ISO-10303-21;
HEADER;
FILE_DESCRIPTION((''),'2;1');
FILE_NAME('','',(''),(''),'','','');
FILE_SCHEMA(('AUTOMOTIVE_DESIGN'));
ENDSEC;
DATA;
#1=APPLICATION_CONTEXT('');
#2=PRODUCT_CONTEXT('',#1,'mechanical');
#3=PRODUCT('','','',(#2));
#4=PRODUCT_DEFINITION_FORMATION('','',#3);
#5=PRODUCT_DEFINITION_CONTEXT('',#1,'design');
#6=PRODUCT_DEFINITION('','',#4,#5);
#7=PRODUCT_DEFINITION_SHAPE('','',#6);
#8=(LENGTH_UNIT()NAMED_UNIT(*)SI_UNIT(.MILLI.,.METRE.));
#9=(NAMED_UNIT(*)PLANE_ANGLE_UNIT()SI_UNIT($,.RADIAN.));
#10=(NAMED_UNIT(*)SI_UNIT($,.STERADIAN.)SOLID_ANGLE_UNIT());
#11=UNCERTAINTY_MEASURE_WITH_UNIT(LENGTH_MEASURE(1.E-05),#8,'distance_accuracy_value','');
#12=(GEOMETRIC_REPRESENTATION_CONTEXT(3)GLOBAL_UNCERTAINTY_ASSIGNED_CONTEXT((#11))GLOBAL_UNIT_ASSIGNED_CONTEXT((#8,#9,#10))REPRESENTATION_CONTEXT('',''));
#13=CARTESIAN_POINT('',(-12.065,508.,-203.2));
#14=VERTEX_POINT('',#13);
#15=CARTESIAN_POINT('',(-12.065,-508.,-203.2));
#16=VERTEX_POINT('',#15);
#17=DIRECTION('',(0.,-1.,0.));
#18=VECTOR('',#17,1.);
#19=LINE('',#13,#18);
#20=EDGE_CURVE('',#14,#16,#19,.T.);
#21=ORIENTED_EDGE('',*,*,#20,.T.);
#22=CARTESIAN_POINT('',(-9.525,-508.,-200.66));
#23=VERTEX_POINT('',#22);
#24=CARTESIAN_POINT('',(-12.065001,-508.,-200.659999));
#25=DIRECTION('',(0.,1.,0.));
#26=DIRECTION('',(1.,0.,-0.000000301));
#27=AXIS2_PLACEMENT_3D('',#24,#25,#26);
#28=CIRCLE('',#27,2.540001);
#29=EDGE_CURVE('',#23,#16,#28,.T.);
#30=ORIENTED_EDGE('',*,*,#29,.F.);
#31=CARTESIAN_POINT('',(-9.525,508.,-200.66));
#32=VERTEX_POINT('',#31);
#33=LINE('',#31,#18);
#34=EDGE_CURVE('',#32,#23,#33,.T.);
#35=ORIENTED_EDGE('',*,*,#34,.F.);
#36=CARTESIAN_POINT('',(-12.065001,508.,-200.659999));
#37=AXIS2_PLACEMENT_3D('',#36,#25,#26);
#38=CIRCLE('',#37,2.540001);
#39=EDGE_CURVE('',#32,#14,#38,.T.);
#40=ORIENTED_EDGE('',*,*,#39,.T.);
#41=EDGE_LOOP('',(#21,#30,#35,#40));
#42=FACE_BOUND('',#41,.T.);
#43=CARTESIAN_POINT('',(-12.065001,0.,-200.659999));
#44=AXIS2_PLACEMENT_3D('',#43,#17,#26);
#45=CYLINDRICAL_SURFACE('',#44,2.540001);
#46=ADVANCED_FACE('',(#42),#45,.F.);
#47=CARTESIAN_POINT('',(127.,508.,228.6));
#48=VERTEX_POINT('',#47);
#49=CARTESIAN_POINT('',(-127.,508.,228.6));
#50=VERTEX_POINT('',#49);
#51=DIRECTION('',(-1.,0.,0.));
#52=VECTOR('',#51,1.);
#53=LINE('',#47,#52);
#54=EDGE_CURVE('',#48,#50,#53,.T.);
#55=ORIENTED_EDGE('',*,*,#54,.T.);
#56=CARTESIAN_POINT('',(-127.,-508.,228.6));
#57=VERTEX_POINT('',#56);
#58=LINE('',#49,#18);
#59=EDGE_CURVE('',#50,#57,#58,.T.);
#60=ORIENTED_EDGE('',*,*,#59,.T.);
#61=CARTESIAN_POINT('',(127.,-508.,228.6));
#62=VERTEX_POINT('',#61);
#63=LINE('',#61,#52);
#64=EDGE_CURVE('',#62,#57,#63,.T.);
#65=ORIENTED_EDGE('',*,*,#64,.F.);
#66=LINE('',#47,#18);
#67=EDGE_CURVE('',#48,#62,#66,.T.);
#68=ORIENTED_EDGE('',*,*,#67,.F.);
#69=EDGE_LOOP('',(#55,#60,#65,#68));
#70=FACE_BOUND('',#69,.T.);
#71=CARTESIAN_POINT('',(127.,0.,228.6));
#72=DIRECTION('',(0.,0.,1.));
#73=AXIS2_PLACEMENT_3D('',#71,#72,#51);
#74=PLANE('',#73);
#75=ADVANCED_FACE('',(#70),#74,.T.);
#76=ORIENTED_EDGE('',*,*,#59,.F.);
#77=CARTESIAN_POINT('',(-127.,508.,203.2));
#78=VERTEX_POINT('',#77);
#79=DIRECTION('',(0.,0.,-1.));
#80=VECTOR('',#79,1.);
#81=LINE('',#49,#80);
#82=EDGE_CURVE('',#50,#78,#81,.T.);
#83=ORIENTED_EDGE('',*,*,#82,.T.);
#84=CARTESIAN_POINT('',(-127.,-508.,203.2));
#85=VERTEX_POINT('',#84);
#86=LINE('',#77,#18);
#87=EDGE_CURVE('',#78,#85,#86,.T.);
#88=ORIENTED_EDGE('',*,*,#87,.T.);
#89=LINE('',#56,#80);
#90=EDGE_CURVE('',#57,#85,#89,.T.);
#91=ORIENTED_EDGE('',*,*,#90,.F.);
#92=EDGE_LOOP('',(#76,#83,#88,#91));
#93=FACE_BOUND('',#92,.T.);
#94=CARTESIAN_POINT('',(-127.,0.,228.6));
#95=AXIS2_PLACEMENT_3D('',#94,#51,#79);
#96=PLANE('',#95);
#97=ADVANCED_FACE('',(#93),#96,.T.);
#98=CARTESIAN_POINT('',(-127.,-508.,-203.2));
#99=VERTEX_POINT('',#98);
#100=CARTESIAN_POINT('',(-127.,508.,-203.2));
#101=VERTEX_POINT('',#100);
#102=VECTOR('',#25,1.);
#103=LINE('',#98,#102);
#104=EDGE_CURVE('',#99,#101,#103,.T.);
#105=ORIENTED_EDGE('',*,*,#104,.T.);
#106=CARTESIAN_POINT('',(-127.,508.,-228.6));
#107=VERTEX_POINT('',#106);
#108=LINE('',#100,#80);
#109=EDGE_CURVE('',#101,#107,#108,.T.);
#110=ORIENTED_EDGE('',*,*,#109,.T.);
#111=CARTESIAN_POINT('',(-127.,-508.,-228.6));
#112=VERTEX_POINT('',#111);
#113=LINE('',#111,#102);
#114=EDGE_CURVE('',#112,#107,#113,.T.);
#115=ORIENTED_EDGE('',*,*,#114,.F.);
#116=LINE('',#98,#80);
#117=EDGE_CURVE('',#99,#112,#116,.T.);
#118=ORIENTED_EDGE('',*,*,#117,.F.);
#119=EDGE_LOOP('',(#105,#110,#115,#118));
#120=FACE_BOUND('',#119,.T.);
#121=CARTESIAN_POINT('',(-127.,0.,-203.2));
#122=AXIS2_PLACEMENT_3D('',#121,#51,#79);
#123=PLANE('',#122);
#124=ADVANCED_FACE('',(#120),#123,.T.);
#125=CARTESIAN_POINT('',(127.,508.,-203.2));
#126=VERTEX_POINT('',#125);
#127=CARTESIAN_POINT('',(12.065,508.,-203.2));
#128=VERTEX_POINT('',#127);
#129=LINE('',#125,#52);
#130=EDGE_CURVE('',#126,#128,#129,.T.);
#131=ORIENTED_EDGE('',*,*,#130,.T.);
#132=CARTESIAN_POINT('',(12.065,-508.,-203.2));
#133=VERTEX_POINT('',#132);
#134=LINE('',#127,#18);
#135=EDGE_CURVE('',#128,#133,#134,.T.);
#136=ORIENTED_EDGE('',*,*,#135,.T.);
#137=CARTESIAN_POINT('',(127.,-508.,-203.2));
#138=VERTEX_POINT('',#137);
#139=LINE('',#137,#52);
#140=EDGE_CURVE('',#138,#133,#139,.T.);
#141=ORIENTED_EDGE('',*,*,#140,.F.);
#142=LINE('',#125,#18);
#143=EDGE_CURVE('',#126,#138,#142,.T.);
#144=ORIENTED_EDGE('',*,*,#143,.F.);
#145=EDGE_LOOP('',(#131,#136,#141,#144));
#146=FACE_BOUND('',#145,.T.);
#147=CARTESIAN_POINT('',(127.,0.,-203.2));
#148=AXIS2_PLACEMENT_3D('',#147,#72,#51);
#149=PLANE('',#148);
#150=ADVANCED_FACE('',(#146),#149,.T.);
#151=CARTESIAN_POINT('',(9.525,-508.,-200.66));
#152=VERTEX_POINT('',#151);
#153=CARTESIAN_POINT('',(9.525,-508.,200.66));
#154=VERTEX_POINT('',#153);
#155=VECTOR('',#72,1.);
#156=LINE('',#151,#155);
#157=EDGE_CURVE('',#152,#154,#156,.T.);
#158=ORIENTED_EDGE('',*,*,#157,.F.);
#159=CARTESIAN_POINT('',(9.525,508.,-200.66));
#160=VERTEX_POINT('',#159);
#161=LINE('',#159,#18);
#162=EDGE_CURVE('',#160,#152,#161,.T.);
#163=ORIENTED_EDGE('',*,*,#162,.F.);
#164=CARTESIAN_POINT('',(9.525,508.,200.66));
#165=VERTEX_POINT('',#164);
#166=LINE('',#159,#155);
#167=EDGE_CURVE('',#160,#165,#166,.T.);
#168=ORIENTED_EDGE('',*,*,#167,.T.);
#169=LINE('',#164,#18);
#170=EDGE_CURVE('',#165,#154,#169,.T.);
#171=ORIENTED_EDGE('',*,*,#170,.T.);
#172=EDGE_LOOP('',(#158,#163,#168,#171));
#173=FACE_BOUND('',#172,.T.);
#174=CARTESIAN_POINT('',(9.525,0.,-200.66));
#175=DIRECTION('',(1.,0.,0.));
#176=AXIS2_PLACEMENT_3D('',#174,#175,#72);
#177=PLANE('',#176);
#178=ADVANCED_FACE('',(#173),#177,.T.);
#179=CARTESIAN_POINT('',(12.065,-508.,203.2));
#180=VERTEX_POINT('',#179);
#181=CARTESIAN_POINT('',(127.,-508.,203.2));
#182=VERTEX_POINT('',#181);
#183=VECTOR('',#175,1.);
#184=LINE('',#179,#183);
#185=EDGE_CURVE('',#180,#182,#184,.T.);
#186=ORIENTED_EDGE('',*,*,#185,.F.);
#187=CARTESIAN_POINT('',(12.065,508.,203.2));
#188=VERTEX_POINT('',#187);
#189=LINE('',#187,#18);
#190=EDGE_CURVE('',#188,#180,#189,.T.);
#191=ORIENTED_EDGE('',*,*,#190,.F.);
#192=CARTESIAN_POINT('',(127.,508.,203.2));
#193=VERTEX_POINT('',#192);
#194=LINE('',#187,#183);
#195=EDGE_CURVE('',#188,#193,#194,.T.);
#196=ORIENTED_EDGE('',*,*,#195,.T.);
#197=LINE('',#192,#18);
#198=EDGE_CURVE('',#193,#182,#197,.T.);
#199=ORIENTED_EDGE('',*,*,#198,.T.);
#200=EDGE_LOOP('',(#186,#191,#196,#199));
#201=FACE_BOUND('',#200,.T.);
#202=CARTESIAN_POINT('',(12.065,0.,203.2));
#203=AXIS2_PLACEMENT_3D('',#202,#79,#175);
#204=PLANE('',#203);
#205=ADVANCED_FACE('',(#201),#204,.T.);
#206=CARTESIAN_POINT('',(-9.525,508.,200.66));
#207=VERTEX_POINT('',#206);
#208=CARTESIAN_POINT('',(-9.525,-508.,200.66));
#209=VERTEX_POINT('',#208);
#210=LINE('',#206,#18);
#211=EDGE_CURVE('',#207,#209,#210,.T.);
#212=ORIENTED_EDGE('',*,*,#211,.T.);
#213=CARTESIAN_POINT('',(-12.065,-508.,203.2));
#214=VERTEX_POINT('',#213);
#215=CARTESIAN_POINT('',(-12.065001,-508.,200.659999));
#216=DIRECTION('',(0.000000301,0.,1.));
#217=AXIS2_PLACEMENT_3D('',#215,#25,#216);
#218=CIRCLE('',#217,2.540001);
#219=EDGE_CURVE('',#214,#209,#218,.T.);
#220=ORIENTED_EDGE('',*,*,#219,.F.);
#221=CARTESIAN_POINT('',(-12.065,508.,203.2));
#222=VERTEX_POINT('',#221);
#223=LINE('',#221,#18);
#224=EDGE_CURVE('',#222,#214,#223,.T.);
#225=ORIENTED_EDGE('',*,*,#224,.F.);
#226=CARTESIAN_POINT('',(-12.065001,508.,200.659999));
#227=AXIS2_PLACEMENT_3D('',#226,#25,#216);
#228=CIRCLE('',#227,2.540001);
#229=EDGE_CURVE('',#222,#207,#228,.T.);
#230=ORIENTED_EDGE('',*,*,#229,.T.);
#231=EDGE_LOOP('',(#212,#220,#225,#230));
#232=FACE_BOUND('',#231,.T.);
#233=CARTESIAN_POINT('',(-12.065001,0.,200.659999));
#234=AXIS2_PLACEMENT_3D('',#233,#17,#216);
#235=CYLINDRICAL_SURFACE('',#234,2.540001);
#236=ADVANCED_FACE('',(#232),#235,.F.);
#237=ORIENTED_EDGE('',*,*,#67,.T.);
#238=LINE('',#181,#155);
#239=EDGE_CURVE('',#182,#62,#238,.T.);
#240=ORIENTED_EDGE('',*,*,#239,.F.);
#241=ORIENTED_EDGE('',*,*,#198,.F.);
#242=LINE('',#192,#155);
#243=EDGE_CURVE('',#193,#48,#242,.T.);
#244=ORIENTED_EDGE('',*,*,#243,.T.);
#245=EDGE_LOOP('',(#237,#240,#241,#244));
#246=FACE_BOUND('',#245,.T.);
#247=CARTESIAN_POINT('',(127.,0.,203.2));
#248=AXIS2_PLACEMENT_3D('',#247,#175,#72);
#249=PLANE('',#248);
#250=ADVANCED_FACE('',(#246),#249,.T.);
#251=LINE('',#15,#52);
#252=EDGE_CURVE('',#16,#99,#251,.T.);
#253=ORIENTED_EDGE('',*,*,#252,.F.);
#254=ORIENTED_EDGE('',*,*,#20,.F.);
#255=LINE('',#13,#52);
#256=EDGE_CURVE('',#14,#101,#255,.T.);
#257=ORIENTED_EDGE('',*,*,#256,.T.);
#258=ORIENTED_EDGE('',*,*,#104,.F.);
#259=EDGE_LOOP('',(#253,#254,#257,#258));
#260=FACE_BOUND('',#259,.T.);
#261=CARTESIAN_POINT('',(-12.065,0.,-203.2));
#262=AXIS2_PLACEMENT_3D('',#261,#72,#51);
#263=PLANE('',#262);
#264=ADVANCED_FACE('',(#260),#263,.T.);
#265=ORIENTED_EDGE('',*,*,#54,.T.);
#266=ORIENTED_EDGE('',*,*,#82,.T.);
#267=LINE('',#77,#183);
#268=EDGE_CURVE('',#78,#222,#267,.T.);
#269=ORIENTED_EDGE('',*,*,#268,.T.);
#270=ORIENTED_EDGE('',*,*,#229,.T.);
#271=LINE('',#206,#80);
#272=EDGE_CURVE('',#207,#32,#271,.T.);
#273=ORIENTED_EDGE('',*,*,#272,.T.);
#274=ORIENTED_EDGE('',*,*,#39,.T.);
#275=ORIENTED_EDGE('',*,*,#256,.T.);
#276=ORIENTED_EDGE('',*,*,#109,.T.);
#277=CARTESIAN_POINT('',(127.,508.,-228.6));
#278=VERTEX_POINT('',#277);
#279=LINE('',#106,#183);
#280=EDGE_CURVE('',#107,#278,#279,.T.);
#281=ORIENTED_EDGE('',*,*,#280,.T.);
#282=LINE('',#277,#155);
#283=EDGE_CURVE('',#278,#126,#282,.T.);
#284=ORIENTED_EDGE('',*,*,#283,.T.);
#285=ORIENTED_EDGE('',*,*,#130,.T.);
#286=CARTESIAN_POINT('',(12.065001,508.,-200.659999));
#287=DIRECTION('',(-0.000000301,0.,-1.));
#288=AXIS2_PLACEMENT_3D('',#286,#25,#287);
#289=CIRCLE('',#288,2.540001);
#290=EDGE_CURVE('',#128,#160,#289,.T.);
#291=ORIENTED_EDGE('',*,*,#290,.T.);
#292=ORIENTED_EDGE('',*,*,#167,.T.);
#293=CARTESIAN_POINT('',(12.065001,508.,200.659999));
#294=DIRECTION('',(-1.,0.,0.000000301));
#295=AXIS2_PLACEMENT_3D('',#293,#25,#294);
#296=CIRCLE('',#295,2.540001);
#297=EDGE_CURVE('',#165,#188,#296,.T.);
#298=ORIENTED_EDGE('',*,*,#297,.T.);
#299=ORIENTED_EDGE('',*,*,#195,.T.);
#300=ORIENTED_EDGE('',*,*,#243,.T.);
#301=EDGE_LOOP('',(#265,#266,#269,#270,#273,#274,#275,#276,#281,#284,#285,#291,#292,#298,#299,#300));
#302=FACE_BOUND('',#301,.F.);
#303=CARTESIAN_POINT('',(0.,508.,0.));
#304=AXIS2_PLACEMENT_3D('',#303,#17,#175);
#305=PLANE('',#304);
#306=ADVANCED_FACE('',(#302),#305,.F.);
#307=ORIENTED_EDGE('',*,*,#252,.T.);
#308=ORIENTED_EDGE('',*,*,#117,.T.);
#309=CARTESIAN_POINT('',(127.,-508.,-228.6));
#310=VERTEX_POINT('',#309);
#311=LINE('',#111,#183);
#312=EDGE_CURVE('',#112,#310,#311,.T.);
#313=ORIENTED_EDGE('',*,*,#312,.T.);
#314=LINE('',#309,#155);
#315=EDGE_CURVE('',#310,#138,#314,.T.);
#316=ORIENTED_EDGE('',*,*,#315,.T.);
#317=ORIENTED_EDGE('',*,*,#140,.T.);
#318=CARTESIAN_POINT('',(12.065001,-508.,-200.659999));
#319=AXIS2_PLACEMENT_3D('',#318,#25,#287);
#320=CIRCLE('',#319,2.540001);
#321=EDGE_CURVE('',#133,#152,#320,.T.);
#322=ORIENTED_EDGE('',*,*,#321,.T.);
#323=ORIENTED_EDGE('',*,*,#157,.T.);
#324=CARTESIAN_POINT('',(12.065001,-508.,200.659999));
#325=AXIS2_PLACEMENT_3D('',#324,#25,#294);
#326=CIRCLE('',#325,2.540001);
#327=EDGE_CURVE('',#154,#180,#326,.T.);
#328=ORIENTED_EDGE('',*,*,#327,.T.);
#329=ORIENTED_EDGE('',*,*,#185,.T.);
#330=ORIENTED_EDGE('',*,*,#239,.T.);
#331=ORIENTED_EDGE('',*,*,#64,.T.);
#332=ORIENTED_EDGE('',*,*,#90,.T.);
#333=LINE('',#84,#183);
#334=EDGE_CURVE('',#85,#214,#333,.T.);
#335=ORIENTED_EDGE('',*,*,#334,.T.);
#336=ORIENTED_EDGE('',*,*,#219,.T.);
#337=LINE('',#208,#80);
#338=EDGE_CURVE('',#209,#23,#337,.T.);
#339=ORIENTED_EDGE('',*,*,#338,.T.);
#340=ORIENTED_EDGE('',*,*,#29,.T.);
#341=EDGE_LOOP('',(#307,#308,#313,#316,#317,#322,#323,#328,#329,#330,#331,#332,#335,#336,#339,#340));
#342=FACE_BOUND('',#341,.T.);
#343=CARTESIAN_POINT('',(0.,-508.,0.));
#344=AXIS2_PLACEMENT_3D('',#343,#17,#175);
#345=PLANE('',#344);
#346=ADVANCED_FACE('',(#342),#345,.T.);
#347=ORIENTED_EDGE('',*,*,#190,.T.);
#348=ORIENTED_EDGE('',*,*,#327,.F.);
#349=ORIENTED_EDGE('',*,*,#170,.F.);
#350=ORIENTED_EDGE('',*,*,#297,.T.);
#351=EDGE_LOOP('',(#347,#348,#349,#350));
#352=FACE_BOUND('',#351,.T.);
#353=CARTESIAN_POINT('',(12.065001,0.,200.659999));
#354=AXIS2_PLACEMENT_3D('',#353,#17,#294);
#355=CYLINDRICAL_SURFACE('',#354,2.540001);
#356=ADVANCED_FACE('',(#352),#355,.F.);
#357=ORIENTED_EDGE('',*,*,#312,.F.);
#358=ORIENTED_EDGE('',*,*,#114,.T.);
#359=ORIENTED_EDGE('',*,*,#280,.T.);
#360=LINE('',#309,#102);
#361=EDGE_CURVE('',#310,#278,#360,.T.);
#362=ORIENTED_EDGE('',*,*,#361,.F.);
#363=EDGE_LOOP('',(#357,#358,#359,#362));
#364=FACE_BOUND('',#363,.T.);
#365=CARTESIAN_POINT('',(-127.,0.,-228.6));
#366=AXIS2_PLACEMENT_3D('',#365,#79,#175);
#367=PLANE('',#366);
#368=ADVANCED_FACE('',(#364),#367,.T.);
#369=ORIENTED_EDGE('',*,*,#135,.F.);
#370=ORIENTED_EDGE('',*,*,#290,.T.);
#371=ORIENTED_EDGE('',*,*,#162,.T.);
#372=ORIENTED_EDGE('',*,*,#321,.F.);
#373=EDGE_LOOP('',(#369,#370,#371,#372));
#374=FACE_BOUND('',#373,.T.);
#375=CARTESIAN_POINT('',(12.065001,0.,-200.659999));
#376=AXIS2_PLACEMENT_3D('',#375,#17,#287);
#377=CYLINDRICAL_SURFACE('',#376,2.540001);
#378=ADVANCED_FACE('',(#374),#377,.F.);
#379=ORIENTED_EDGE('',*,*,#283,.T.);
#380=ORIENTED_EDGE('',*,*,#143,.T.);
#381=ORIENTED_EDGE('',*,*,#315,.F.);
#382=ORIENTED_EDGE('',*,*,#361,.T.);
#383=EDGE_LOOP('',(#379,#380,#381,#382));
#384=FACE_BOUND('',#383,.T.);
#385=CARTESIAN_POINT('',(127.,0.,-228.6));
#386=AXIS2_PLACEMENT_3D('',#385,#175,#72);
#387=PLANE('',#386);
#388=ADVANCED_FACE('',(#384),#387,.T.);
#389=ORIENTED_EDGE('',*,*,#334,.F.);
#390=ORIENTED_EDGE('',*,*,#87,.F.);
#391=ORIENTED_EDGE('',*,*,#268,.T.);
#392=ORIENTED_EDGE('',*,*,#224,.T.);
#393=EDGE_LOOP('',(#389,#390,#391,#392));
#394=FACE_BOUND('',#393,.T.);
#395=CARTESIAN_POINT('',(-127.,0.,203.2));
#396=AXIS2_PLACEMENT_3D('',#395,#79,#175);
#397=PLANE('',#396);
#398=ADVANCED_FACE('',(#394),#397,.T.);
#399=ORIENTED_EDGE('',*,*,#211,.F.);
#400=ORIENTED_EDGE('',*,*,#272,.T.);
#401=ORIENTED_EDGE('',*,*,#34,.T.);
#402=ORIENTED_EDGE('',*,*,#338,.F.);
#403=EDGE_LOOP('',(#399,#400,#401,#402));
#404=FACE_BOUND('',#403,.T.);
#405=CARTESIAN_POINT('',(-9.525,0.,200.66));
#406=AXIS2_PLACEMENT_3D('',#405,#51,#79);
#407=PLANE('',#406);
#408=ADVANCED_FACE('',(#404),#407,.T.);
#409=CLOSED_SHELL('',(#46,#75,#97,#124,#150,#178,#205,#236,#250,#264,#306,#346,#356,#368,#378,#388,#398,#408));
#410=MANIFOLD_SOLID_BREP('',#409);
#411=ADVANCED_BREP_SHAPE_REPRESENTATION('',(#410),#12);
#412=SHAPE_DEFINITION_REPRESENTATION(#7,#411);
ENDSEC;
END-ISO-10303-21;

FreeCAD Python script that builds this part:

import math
import FreeCAD as App
import Part
import Sketcher
from FreeCAD import Vector
Q = App.Units.Quantity

doc = App.newDocument("Part")
body = doc.addObject("PartDesign::Body", "Body")

# Sketch on XZ plane
sketch1 = body.newObject("Sketcher::SketchObject", "Sketch")
sketch1.AttachmentSupport = (doc.getObject("XZ_Plane"), [""])
sketch1.MapMode = "FlatFace"
sketch1.addGeometry([
    Part.LineSegment(Vector(127, -228.6, 0), Vector(127, -203.2, 0)),  # 0
    Part.LineSegment(Vector(127, -203.2, 0), Vector(12.1, -203.2, 0)),  # 1
    Part.ArcOfCircle(Part.Circle(Vector(12.1, -200.7, 0), Vector(0, 0, 1), 2.5), math.radians(-180), math.radians(-90)),  # 2
    Part.LineSegment(Vector(9.5, -200.7, 0), Vector(9.5, 200.7, 0)),  # 3
    Part.ArcOfCircle(Part.Circle(Vector(12.1, 200.7, 0), Vector(0, 0, 1), 2.5), math.radians(90), math.radians(180)),  # 4
    Part.LineSegment(Vector(12.1, 203.2, 0), Vector(127, 203.2, 0)),  # 5
    Part.LineSegment(Vector(127, 203.2, 0), Vector(127, 228.6, 0)),  # 6
    Part.LineSegment(Vector(127, 228.6, 0), Vector(-127, 228.6, 0)),  # 7
    Part.LineSegment(Vector(-127, 228.6, 0), Vector(-127, 203.2, 0)),  # 8
    Part.LineSegment(Vector(-127, 203.2, 0), Vector(-12.1, 203.2, 0)),  # 9
    Part.ArcOfCircle(Part.Circle(Vector(-12.1, 200.7, 0), Vector(0, 0, 1), 2.5), math.radians(0), math.radians(90)),  # 10
    Part.LineSegment(Vector(-9.5, 200.7, 0), Vector(-9.5, -200.7, 0)),  # 11
    Part.ArcOfCircle(Part.Circle(Vector(-12.1, -200.7, 0), Vector(0, 0, 1), 2.5), math.radians(-90), math.radians(0)),  # 12
    Part.LineSegment(Vector(-12.1, -203.2, 0), Vector(-127, -203.2, 0)),  # 13
    Part.LineSegment(Vector(-127, -203.2, 0), Vector(-127, -228.6, 0)),  # 14
    Part.LineSegment(Vector(-127, -228.6, 0), Vector(127, -228.6, 0)),  # 15
], False)
sketch1.addConstraint([
    Sketcher.Constraint("Coincident", 0, 2, 1, 1),
    Sketcher.Constraint("Tangent", 1, 2, 2, 2),
    Sketcher.Constraint("Tangent", 2, 1, 3, 1),
    Sketcher.Constraint("Tangent", 3, 2, 4, 2),
    Sketcher.Constraint("Tangent", 4, 1, 5, 1),
    Sketcher.Constraint("Coincident", 5, 2, 6, 1),
    Sketcher.Constraint("Coincident", 6, 2, 7, 1),
    Sketcher.Constraint("Coincident", 7, 2, 8, 1),
    Sketcher.Constraint("Coincident", 8, 2, 9, 1),
    Sketcher.Constraint("Tangent", 9, 2, 10, 2),
    Sketcher.Constraint("Tangent", 10, 1, 11, 1),
    Sketcher.Constraint("Tangent", 11, 2, 12, 2),
    Sketcher.Constraint("Tangent", 12, 1, 13, 1),
    Sketcher.Constraint("Coincident", 13, 2, 14, 1),
    Sketcher.Constraint("Coincident", 14, 2, 15, 1),
    Sketcher.Constraint("Coincident", 15, 2, 0, 1),
    Sketcher.Constraint("Vertical", 0),
    Sketcher.Constraint("Horizontal", 1),
    Sketcher.Constraint("Vertical", 3),
    Sketcher.Constraint("Horizontal", 5),
    Sketcher.Constraint("Vertical", 6),
    Sketcher.Constraint("Horizontal", 7),
    Sketcher.Constraint("Vertical", 8),
    Sketcher.Constraint("Horizontal", 9),
    Sketcher.Constraint("Vertical", 11),
    Sketcher.Constraint("Horizontal", 13),
    Sketcher.Constraint("Vertical", 14),
    Sketcher.Constraint("Horizontal", 15),
    Sketcher.Constraint("Equal", 2, 4),
    Sketcher.Constraint("Equal", 4, 10),
    Sketcher.Constraint("Equal", 10, 12),
    Sketcher.Constraint("Symmetric", 2, 3, 10, 3, -1, 1),
    Sketcher.Constraint("Symmetric", 5, 2, 13, 2, -1, 1),
    Sketcher.Constraint("Symmetric", 7, 2, 15, 2, -1, 1),
    Sketcher.Constraint("Symmetric", 5, 2, 8, 2, -2),
    Sketcher.Constraint("Radius", 2, Q("0.1 in")),
    Sketcher.Constraint("DistanceX", 7, 2, 7, 1, Q("10 in")),
    Sketcher.Constraint("DistanceY", 0, 1, 0, 2, Q("1 in")),
    Sketcher.Constraint("DistanceY", 3, 1, 3, 2, Q("15.8 in")),
    Sketcher.Constraint("DistanceX", 1, 2, 1, 1, Q("4.525 in")),
])
pad1 = body.newObject("PartDesign::Pad", "Pad")
pad1.Profile = sketch1
pad1.Length = Q("40 in")
pad1.Midplane = True

doc.recompute()
